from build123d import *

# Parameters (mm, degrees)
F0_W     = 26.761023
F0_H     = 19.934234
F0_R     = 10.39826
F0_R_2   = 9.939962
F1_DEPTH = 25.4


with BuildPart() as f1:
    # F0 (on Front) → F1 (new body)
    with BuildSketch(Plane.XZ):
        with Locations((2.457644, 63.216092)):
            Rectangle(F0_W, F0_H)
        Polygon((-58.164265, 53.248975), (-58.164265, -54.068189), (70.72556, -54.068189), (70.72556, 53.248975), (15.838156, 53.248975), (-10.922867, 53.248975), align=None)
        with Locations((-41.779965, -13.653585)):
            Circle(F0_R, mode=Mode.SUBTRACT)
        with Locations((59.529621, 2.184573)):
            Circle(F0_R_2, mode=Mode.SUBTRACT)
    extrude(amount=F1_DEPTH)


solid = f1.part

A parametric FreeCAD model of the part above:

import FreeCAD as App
import Part
import Sketcher
from FreeCAD import Vector
Q = App.Units.Quantity


def add_polygon(sketch, points):
    """Adds a closed chain of lines whose ends are joined by coincident constraints."""
    first, n = sketch.GeometryCount, len(points)
    for a, b in zip(points, points[1:] + points[:1]):
        sketch.addGeometry(Part.LineSegment(App.Vector(*a, 0), App.Vector(*b, 0)), False)
    for i in range(n):
        sketch.addConstraint(Sketcher.Constraint("Coincident", first + i, 2, first + (i + 1) % n, 1))

doc = App.newDocument("Part")
body = doc.addObject("PartDesign::Body", "Body")

# Sketch on XZ plane
sketch1 = body.newObject("Sketcher::SketchObject", "Sketch")
sketch1.AttachmentSupport = (doc.getObject("XZ_Plane"), [""])
sketch1.MapMode = "FlatFace"
add_polygon(sketch1, [(-10.922868, 73.183209), (-10.922868, 53.248975), (-58.164265, 53.248975), (-58.164265, -54.068189), (70.72556, -54.068189), (70.72556, 53.248975), (15.838155, 53.248975), (15.838155, 73.183209)])  # lines 0-7
sketch1.addGeometry(Part.Circle(Vector(-41.779965, -13.653585, 0), Vector(0, 0, 1), 10.39826), False)  # 8
sketch1.addGeometry(Part.Circle(Vector(59.529621, 2.184573, 0), Vector(0, 0, 1), 9.939962), False)  # 9
sketch1.addConstraint(Sketcher.Constraint("Vertical", 0))
sketch1.addConstraint(Sketcher.Constraint("Horizontal", 1))
sketch1.addConstraint(Sketcher.Constraint("Vertical", 2))
sketch1.addConstraint(Sketcher.Constraint("Horizontal", 3))
sketch1.addConstraint(Sketcher.Constraint("Vertical", 4))
sketch1.addConstraint(Sketcher.Constraint("Horizontal", 5))
sketch1.addConstraint(Sketcher.Constraint("Vertical", 6))
sketch1.addConstraint(Sketcher.Constraint("Horizontal", 7))
sketch1.addConstraint(Sketcher.Constraint("Horizontal", 1, 2, 4, 2))
sketch1.addConstraint(Sketcher.Constraint("Diameter", 8, 20.79652))
sketch1.addConstraint(Sketcher.Constraint("Diameter", 9, 19.879924))
sketch1.addConstraint(Sketcher.Constraint("DistanceX", 1, 2, 8, 3, 16.3843))
sketch1.addConstraint(Sketcher.Constraint("DistanceX", 1, 2, 1, 1, 47.241397))
sketch1.addConstraint(Sketcher.Constraint("DistanceX", 3, 1, 3, 2, 128.889825))
sketch1.addConstraint(Sketcher.Constraint("DistanceX", 5, 2, 5, 1, 54.887405))
sketch1.addConstraint(Sketcher.Constraint("DistanceY", 0, 2, 0, 1, 19.934234))
sketch1.addConstraint(Sketcher.Constraint("DistanceY", 2, 2, 2, 1, 107.317164))
sketch1.addConstraint(Sketcher.Constraint("DistanceX", -1, 1, 9, 3, 59.529621))
sketch1.addConstraint(Sketcher.Constraint("DistanceY", 2, 2, -1, 1, 54.068189))
sketch1.addConstraint(Sketcher.Constraint("DistanceX", -1, 1, 3, 2, 70.72556))
sketch1.addConstraint(Sketcher.Constraint("DistanceY", 8, 3, 0, 2, 66.90256))
sketch1.addConstraint(Sketcher.Constraint("DistanceY", 2, 2, 9, 3, 56.252762))
pad1 = body.newObject("PartDesign::Pad", "Pad")
pad1.Profile = sketch1
pad1.Length = Q("1 in")

doc.recompute()
